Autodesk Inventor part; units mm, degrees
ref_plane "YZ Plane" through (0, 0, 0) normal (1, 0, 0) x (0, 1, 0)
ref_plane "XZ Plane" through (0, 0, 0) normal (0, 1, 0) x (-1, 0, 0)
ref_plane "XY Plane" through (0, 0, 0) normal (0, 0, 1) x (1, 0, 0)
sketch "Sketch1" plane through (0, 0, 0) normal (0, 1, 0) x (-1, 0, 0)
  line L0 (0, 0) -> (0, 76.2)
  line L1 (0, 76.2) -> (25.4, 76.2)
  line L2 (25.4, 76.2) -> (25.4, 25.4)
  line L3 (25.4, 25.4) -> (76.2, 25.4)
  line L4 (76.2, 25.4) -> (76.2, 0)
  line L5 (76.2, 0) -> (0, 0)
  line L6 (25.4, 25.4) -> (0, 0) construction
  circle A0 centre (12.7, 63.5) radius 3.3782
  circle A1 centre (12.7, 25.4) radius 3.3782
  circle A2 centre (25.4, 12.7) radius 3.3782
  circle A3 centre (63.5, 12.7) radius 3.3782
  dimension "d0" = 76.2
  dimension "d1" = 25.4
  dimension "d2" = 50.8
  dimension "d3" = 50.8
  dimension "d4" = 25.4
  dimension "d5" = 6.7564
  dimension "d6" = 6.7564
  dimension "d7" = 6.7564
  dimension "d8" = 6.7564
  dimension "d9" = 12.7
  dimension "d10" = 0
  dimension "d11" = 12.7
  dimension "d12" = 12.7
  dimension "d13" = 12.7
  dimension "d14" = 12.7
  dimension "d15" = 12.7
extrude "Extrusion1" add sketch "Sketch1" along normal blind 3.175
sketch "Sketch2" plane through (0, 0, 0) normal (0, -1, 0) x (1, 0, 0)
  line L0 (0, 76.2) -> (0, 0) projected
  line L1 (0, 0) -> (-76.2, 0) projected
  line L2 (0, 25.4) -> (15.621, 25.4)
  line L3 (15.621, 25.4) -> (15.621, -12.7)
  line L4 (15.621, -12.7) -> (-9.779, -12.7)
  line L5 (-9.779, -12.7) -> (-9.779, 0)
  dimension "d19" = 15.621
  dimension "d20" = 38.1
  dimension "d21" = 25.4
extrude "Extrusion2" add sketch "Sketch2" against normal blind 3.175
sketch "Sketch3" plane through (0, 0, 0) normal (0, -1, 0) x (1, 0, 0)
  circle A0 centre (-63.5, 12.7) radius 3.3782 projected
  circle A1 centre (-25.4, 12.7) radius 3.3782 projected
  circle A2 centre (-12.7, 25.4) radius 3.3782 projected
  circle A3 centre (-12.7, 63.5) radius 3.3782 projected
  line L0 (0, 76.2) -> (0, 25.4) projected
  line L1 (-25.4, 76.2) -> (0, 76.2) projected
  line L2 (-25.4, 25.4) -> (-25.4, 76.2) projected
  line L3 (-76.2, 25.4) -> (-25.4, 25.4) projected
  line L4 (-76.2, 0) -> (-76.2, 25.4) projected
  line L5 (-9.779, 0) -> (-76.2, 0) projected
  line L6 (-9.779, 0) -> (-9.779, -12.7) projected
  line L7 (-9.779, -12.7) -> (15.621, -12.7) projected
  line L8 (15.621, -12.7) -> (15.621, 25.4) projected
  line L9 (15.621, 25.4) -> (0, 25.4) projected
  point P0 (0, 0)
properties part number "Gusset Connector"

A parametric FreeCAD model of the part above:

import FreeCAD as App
import Part
import Sketcher
Q = App.Units.Quantity

doc = App.newDocument("Part")
body = doc.addObject("PartDesign::Body", "Body")

sketch1 = body.newObject("Sketcher::SketchObject", "Sketch")
sketch1.AttachmentSupport = (doc.getObject("XZ_Plane"), [""])
sketch1.MapMode = "FlatFace"
sketch1.addGeometry([
    Part.LineSegment(App.Vector(0, 76.2, 0), App.Vector(0, 0, 0)),
    Part.LineSegment(App.Vector(0, 0, 0), App.Vector(-76.2, 0, 0)),
    Part.LineSegment(App.Vector(-76.2, 0, 0), App.Vector(-76.2, 25.4, 0)),
    Part.LineSegment(App.Vector(-76.2, 25.4, 0), App.Vector(-25.4, 25.4, 0)),
    Part.LineSegment(App.Vector(-25.4, 25.4, 0), App.Vector(-25.4, 76.2, 0)),
    Part.LineSegment(App.Vector(-25.4, 76.2, 0), App.Vector(0, 76.2, 0)),
    Part.Circle(App.Vector(-25.4, 12.7, 0), App.Vector(0, 0, 1), 3.4),
    Part.Circle(App.Vector(-12.7, 25.4, 0), App.Vector(0, 0, 1), 3.4),
    Part.Circle(App.Vector(-63.5, 12.7, 0), App.Vector(0, 0, 1), 3.4),
    Part.Circle(App.Vector(-12.7, 63.5, 0), App.Vector(0, 0, 1), 3.4),
], False)
sketch1.addConstraint([
    Sketcher.Constraint("Coincident", 0, 2, 1, 1),
    Sketcher.Constraint("Coincident", 1, 2, 2, 1),
    Sketcher.Constraint("Coincident", 2, 2, 3, 1),
    Sketcher.Constraint("Coincident", 3, 2, 4, 1),
    Sketcher.Constraint("Coincident", 4, 2, 5, 1),
    Sketcher.Constraint("Coincident", 5, 2, 0, 1),
    Sketcher.Constraint("Vertical", 0),
    Sketcher.Constraint("Horizontal", 1),
    Sketcher.Constraint("Vertical", 2),
    Sketcher.Constraint("Horizontal", 3),
    Sketcher.Constraint("Vertical", 4),
    Sketcher.Constraint("Horizontal", 5),
    Sketcher.Constraint("Coincident", 0, 2, -1, 1),
    Sketcher.Constraint("Equal", 6, 7),
    Sketcher.Constraint("Equal", 7, 8),
    Sketcher.Constraint("Equal", 8, 9),
    Sketcher.Constraint("Horizontal", 6, 3, 8, 3),
    Sketcher.Constraint("Horizontal", 7, 3, 2, 2),
    Sketcher.Constraint("Vertical", 7, 3, 9, 3),
    Sketcher.Constraint("Vertical", 6, 3, 3, 2),
    Sketcher.Constraint("Equal", 1, 0),
    Sketcher.Constraint("Equal", 5, 2),
    Sketcher.Constraint("DistanceX", 1, 2, 1, 1, Q("3 in")),
    Sketcher.Constraint("DistanceX", 3, 1, 3, 2, Q("2 in")),
    Sketcher.Constraint("Diameter", 6, Q("0.266 in")),
    Sketcher.Constraint("DistanceX", 8, 3, 7, 3, Q("2 in")),
    Sketcher.Constraint("DistanceY", 6, 3, 9, 3, Q("2 in")),
    Sketcher.Constraint("DistanceY", -1, 1, 6, 3, Q("0.5 in")),
    Sketcher.Constraint("DistanceX", 7, 3, -1, 1, Q("0.5 in")),
])
pad1 = body.newObject("PartDesign::Pad", "Pad")
pad1.Profile = sketch1
pad1.Length = Q("0.125 in")
pad1.Reversed = True

sketch2 = body.newObject("Sketcher::SketchObject", "Sketch001")
sketch2.AttachmentSupport = (doc.getObject("XZ_Plane"), [""])
sketch2.MapMode = "FlatFace"
sketch2.addGeometry([
    Part.LineSegment(App.Vector(16, 25, 0), App.Vector(0, 25, 0)),
    Part.LineSegment(App.Vector(0, 25, 0), App.Vector(0, 0, 0)),
    Part.LineSegment(App.Vector(0, 0, 0), App.Vector(-10, 0, 0)),
    Part.LineSegment(App.Vector(-10, 0, 0), App.Vector(-10, -13, 0)),
    Part.LineSegment(App.Vector(-10, -13, 0), App.Vector(16, -13, 0)),
    Part.LineSegment(App.Vector(16, -13, 0), App.Vector(16, 25, 0)),
], False)
sketch2.addConstraint([
    Sketcher.Constraint("Coincident", 0, 2, 1, 1),
    Sketcher.Constraint("Coincident", 1, 2, 2, 1),
    Sketcher.Constraint("Coincident", 2, 2, 3, 1),
    Sketcher.Constraint("Coincident", 3, 2, 4, 1),
    Sketcher.Constraint("Coincident", 4, 2, 5, 1),
    Sketcher.Constraint("Coincident", 5, 2, 0, 1),
    Sketcher.Constraint("Horizontal", 0),
    Sketcher.Constraint("Vertical", 1),
    Sketcher.Constraint("Horizontal", 2),
    Sketcher.Constraint("Vertical", 3),
    Sketcher.Constraint("Horizontal", 4),
    Sketcher.Constraint("Vertical", 5),
    Sketcher.Constraint("Coincident", 1, 2, -1, 1),
    Sketcher.Constraint("Equal", 4, 1),
    Sketcher.Constraint("DistanceX", 4, 1, 4, 2, Q("1 in")),
    Sketcher.Constraint("DistanceY", 5, 1, 5, 2, Q("1.5 in")),
    Sketcher.Constraint("DistanceX", 0, 2, 0, 1, Q("0.615 in")),
])
pad2 = body.newObject("PartDesign::Pad", "Pad001")
pad2.Profile = sketch2
pad2.Length = Q("0.125 in")
pad2.Reversed = True

doc.recompute()
